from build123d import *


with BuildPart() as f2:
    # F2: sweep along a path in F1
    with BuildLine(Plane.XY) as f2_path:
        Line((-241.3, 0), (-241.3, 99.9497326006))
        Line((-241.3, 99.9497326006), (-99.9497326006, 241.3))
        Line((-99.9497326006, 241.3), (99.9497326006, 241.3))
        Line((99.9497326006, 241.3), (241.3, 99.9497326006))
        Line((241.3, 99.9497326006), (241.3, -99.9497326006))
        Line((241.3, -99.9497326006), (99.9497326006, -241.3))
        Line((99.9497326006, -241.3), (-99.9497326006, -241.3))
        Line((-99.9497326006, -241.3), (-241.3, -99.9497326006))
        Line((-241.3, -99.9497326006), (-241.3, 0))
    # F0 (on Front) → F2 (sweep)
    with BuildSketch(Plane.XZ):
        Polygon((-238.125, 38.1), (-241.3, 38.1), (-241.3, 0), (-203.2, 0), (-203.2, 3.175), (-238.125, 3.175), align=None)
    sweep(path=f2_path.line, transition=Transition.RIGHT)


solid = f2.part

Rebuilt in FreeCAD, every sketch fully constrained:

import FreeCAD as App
import Part
import Sketcher
from FreeCAD import Vector
Q = App.Units.Quantity

doc = App.newDocument("Part")
params = doc.addObject("Spreadsheet::Sheet", "Params")
for row, (alias, value) in enumerate([
    ("sketch1_width", "1.5 in"),
    ("sketch1_width2", "0.125 in"),
], start=1):
    params.set(f"A{row}", alias)
    params.set(f"B{row}", "=" + value)
    params.setAlias(f"B{row}", alias)

body = doc.addObject("PartDesign::Body", "Body")

# Sketch on XZ plane
sketch1 = doc.addObject("Sketcher::SketchObject", "Sketch")
body.addObject(sketch1)
sketch1.AttachmentSupport = (doc.XZ_Plane, [""])
sketch1.MapMode = "FlatFace"
sketch1.addGeometry([
    Part.LineSegment(Vector(-238.1, 38.1, 0), Vector(-241.3, 38.1, 0)),  # 0
    Part.LineSegment(Vector(-241.3, 38.1, 0), Vector(-241.3, 0, 0)),  # 1
    Part.LineSegment(Vector(-241.3, 0, 0), Vector(-203.2, 0, 0)),  # 2
    Part.LineSegment(Vector(-203.2, 0, 0), Vector(-203.2, 3.2, 0)),  # 3
    Part.LineSegment(Vector(-203.2, 3.2, 0), Vector(-238.1, 3.2, 0)),  # 4
    Part.LineSegment(Vector(-238.1, 3.2, 0), Vector(-238.1, 38.1, 0)),  # 5
], False)
sketch1.addConstraint([
    Sketcher.Constraint("Coincident", 0, 2, 1, 1),
    Sketcher.Constraint("Coincident", 1, 2, 2, 1),
    Sketcher.Constraint("Coincident", 2, 2, 3, 1),
    Sketcher.Constraint("Coincident", 3, 2, 4, 1),
    Sketcher.Constraint("Coincident", 4, 2, 5, 1),
    Sketcher.Constraint("Coincident", 5, 2, 0, 1),
    Sketcher.Constraint("Horizontal", 0),
    Sketcher.Constraint("Vertical", 1),
    Sketcher.Constraint("Horizontal", 2),
    Sketcher.Constraint("Vertical", 3),
    Sketcher.Constraint("Horizontal", 4),
    Sketcher.Constraint("Vertical", 5),
    Sketcher.Constraint("PointOnObject", 1, 2, -1),
    Sketcher.Constraint("Equal", 2, 1),
    Sketcher.Constraint("Equal", 0, 3),
    Sketcher.Constraint("DistanceX", 2, 1, 2, 2, Q("1.5 in")),
    Sketcher.Constraint("DistanceX", 2, 2, -1, 1, Q("8 in")),
    Sketcher.Constraint("DistanceX", 0, 2, 0, 1, Q("0.125 in")),
])
sketch1.setExpression("Constraints[15]", "Params.sketch1_width")
sketch1.setExpression("Constraints[17]", "Params.sketch1_width2")

# Sketch on XY plane
sketch2 = doc.addObject("Sketcher::SketchObject", "Sketch001")
body.addObject(sketch2)
sketch2.AttachmentSupport = (doc.XY_Plane, [""])
sketch2.MapMode = "FlatFace"
sketch2.addGeometry([
    Part.LineSegment(Vector(-241, 100, 0), Vector(-100, 241, 0)),  # 0
    Part.LineSegment(Vector(-100, 241, 0), Vector(100, 241, 0)),  # 1
    Part.LineSegment(Vector(100, 241, 0), Vector(241, 100, 0)),  # 2
    Part.LineSegment(Vector(241, 100, 0), Vector(241, -100, 0)),  # 3
    Part.LineSegment(Vector(241, -100, 0), Vector(100, -241, 0)),  # 4
    Part.LineSegment(Vector(100, -241, 0), Vector(-100, -241, 0)),  # 5
    Part.LineSegment(Vector(-100, -241, 0), Vector(-241, -100, 0)),  # 6
    Part.LineSegment(Vector(-241, -100, 0), Vector(-241, 100, 0)),  # 7
], False)
sketch2.addConstraint([
    Sketcher.Constraint("Coincident", 0, 2, 1, 1),
    Sketcher.Constraint("Coincident", 1, 2, 2, 1),
    Sketcher.Constraint("Coincident", 2, 2, 3, 1),
    Sketcher.Constraint("Coincident", 3, 2, 4, 1),
    Sketcher.Constraint("Coincident", 4, 2, 5, 1),
    Sketcher.Constraint("Coincident", 5, 2, 6, 1),
    Sketcher.Constraint("Coincident", 6, 2, 7, 1),
    Sketcher.Constraint("Coincident", 7, 2, 0, 1),
    Sketcher.Constraint("Horizontal", 1),
    Sketcher.Constraint("Vertical", 3),
    Sketcher.Constraint("Horizontal", 5),
    Sketcher.Constraint("Vertical", 7),
    Sketcher.Constraint("Symmetric", 0, 2, 4, 2, -1, 1),
    Sketcher.Constraint("Symmetric", 2, 2, 6, 2, -1, 1),
    Sketcher.Constraint("Perpendicular", 0, 2),
    Sketcher.Constraint("Perpendicular", 2, 4),
    Sketcher.Constraint("Perpendicular", 4, 6),
    Sketcher.Constraint("Horizontal", 3, 2, 6, 2),
    Sketcher.Constraint("Vertical", 1, 2, 4, 2),
    Sketcher.Constraint("Equal", 5, 3),
    Sketcher.Constraint("DistanceY", 4, 2, 1, 2, Q("19 in")),
    Sketcher.Constraint("DistanceX", 1, 1, 1, 2, Q("199.899465 mm")),
])
doc.recompute()

additivepipe = doc.addObject("PartDesign::AdditivePipe", "AdditivePipe")
body.addObject(additivepipe)
additivepipe.Profile = sketch1
additivepipe.Spine = (sketch2, ["Edge1", "Edge2", "Edge3", "Edge4", "Edge5", "Edge6", "Edge7", "Edge8"])
additivepipe.Transition = "Right corner"

doc.recompute()
